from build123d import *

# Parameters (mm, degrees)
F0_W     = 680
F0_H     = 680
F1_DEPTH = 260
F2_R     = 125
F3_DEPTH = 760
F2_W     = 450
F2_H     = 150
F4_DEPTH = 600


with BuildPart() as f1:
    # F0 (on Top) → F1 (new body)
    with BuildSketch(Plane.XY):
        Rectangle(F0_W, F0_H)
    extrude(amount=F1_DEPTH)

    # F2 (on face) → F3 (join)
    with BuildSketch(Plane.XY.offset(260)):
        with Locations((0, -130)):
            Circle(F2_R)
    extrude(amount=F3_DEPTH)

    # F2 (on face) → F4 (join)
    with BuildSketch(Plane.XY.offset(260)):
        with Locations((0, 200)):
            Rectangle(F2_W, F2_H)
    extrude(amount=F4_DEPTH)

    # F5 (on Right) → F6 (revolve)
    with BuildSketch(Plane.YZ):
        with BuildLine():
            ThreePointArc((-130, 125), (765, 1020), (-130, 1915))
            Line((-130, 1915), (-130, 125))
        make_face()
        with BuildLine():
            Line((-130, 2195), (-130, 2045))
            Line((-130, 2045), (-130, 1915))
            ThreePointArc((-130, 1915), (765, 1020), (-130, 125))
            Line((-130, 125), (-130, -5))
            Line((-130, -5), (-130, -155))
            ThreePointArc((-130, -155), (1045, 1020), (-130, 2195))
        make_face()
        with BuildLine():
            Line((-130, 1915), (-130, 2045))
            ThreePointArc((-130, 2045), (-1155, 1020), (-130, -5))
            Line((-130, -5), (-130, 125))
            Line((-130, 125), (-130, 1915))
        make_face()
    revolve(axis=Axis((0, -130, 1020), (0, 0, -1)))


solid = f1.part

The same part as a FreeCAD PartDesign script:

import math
import FreeCAD as App
import Part
import Sketcher


def add_polygon(sketch, points):
    """Adds a closed chain of lines whose ends are joined by coincident constraints."""
    first, n = sketch.GeometryCount, len(points)
    for a, b in zip(points, points[1:] + points[:1]):
        sketch.addGeometry(Part.LineSegment(App.Vector(*a, 0), App.Vector(*b, 0)), False)
    for i in range(n):
        sketch.addConstraint(Sketcher.Constraint("Coincident", first + i, 2, first + (i + 1) % n, 1))

doc = App.newDocument("Part")
body = doc.addObject("PartDesign::Body", "Body")

# Sketch on XY plane
sketch1 = doc.addObject("Sketcher::SketchObject", "Sketch")
body.addObject(sketch1)
sketch1.AttachmentSupport = (doc.XY_Plane, [""])
sketch1.MapMode = "FlatFace"
add_polygon(sketch1, [(-340, 340), (-340, -340), (340, -340), (340, 340)])  # lines 0-3
sketch1.addConstraint(Sketcher.Constraint("Vertical", 0))
sketch1.addConstraint(Sketcher.Constraint("Horizontal", 1))
sketch1.addConstraint(Sketcher.Constraint("Vertical", 2))
sketch1.addConstraint(Sketcher.Constraint("Horizontal", 3))
sketch1.addConstraint(Sketcher.Constraint("Symmetric", 0, 2, 2, 2, -1, 1))
sketch1.addConstraint(Sketcher.Constraint("Equal", 3, 0))
sketch1.addConstraint(Sketcher.Constraint("DistanceX", 1, 1, 1, 2, 680.0))
pad1 = doc.addObject("PartDesign::Pad", "Pad")
body.addObject(pad1)
pad1.Profile = sketch1
pad1.Length = 260

# Sketch on XY plane
sketch2 = doc.addObject("Sketcher::SketchObject", "Sketch001")
body.addObject(sketch2)
sketch2.AttachmentSupport = (doc.XY_Plane, [""])
sketch2.MapMode = "FlatFace"
sketch2.AttachmentOffset = App.Placement(App.Vector(0, 0, 260), App.Rotation())
sketch2.addGeometry(Part.Circle(App.Vector(0, -130, 0), App.Vector(0, 0, 1), 125), False)
sketch2.addConstraint(Sketcher.Constraint("PointOnObject", 0, 3, -2))
sketch2.addConstraint(Sketcher.Constraint("Diameter", 0, 250.0))
sketch2.addConstraint(Sketcher.Constraint("DistanceY", 0, 3, -1, 1, 130.0))
pad2 = doc.addObject("PartDesign::Pad", "Pad001")
body.addObject(pad2)
pad2.Profile = sketch2
pad2.Length = 760

# Sketch on XY plane
sketch3 = doc.addObject("Sketcher::SketchObject", "Sketch002")
body.addObject(sketch3)
sketch3.AttachmentSupport = (doc.XY_Plane, [""])
sketch3.MapMode = "FlatFace"
sketch3.AttachmentOffset = App.Placement(App.Vector(0, 0, 260), App.Rotation())
add_polygon(sketch3, [(-225, 275), (-225, 125), (225, 125), (225, 275)])  # lines 0-3
sketch3.addConstraint(Sketcher.Constraint("Vertical", 0))
sketch3.addConstraint(Sketcher.Constraint("Horizontal", 1))
sketch3.addConstraint(Sketcher.Constraint("Vertical", 2))
sketch3.addConstraint(Sketcher.Constraint("Horizontal", 3))
sketch3.addConstraint(Sketcher.Constraint("DistanceX", 1, 1, 1, 2, 450.0))
sketch3.addConstraint(Sketcher.Constraint("DistanceY", 0, 2, 0, 1, 150.0))
sketch3.addConstraint(Sketcher.Constraint("DistanceX", 0, 2, -1, 1, 225.0))
sketch3.addConstraint(Sketcher.Constraint("DistanceY", -1, 1, 0, 2, 125.0))
pad3 = doc.addObject("PartDesign::Pad", "Pad002")
body.addObject(pad3)
pad3.Profile = sketch3
pad3.Length = 600

# Sketch on YZ plane
sketch4 = doc.addObject("Sketcher::SketchObject", "Sketch003")
body.addObject(sketch4)
sketch4.AttachmentSupport = (doc.YZ_Plane, [""])
sketch4.MapMode = "FlatFace"
sketch4.addGeometry(Part.ArcOfCircle(Part.Circle(App.Vector(-130, 1020, 0), App.Vector(0, 0, 1), 1175), math.radians(-90), math.radians(90)), False)
sketch4.addGeometry(Part.LineSegment(App.Vector(-130, 2195, 0), App.Vector(-130, 2045, 0)), False)
sketch4.addGeometry(Part.ArcOfCircle(Part.Circle(App.Vector(-130, 1020, 0), App.Vector(0, 0, 1), 1025), math.radians(90), math.radians(270)), False)
sketch4.addGeometry(Part.LineSegment(App.Vector(-130, -5, 0), App.Vector(-130, -155, 0)), False)
sketch4.addGeometry(Part.LineSegment(App.Vector(-130, 2195, 0), App.Vector(-130, -155, 0)), True)  # axis
sketch4.addConstraint(Sketcher.Constraint("Coincident", 0, 2, 1, 1))
sketch4.addConstraint(Sketcher.Constraint("Coincident", 1, 2, 2, 1))
sketch4.addConstraint(Sketcher.Constraint("Coincident", 2, 2, 3, 1))
sketch4.addConstraint(Sketcher.Constraint("Coincident", 3, 2, 0, 1))
sketch4.addConstraint(Sketcher.Constraint("Vertical", 1))
sketch4.addConstraint(Sketcher.Constraint("Vertical", 3))
sketch4.addConstraint(Sketcher.Constraint("Vertical", 4))
sketch4.addConstraint(Sketcher.Constraint("Coincident", 2, 3, 0, 3))
sketch4.addConstraint(Sketcher.Constraint("Coincident", 4, 2, 3, 2))
sketch4.addConstraint(Sketcher.Constraint("Radius", 0, 1175.0))
sketch4.addConstraint(Sketcher.Constraint("Radius", 2, 1025.0))
sketch4.addConstraint(Sketcher.Constraint("DistanceY", 4, 2, 4, 1, 2350.0))
sketch4.addConstraint(Sketcher.Constraint("DistanceX", 0, 3, -1, 1, 130.0))
sketch4.addConstraint(Sketcher.Constraint("DistanceY", -1, 1, 0, 3, 1020.0))
sketch4.addConstraint(Sketcher.Constraint("DistanceX", 1, 2, -1, 1, 130.0))
sketch4.addConstraint(Sketcher.Constraint("DistanceX", 3, 2, -1, 1, 130.0))
revolution = doc.addObject("PartDesign::Revolution", "Revolution")
body.addObject(revolution)
revolution.Profile = sketch4
revolution.ReferenceAxis = (sketch4, ["Axis0"])
revolution.Angle = 360

doc.recompute()
